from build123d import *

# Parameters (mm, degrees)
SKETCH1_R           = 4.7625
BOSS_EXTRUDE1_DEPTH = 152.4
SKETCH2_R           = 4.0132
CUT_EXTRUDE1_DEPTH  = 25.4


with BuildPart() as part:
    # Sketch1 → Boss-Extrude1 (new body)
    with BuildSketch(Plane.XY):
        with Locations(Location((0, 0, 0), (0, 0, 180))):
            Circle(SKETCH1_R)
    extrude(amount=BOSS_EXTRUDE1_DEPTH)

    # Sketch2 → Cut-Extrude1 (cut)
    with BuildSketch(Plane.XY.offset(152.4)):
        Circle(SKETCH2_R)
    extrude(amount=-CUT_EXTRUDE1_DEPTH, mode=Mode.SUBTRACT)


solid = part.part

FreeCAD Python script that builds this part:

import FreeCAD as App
import Part
import Sketcher

V = App.Vector
Q = App.Units.Quantity

doc = App.newDocument("Part")
body = doc.addObject("PartDesign::Body", "Body")

# Sketch on XY plane
sketch1 = body.newObject("Sketcher::SketchObject", "Sketch")
sketch1.AttachmentSupport = (doc.getObject("XY_Plane"), [""])
sketch1.MapMode = "FlatFace"
sketch1.addGeometry(Part.Circle(V(0, 0, 0), V(0, 0, 1), 4.7625), False)
sketch1.addConstraint([
    Sketcher.Constraint("Coincident", 0, 3, -1, 1),
    Sketcher.Constraint("Diameter", 0, Q("0.375 in")),
])
pad1 = body.newObject("PartDesign::Pad", "Pad")
pad1.Profile = sketch1
pad1.Length = Q("6 in")

# Sketch on XY plane
sketch2 = body.newObject("Sketcher::SketchObject", "Sketch001")
sketch2.AttachmentSupport = (doc.getObject("XY_Plane"), [""])
sketch2.MapMode = "FlatFace"
sketch2.AttachmentOffset = App.Placement(V(0, 0, 6 * 25.4), App.Rotation())
sketch2.addGeometry(Part.Circle(V(0, 0, 0), V(0, 0, 1), 4.0132), False)
sketch2.addConstraint([
    Sketcher.Constraint("Coincident", 0, 3, -1, 1),
    Sketcher.Constraint("Diameter", 0, Q("0.316 in")),
])
pocket1 = body.newObject("PartDesign::Pocket", "Pocket")
pocket1.Profile = sketch2
pocket1.Length = Q("1 in")

doc.recompute()
